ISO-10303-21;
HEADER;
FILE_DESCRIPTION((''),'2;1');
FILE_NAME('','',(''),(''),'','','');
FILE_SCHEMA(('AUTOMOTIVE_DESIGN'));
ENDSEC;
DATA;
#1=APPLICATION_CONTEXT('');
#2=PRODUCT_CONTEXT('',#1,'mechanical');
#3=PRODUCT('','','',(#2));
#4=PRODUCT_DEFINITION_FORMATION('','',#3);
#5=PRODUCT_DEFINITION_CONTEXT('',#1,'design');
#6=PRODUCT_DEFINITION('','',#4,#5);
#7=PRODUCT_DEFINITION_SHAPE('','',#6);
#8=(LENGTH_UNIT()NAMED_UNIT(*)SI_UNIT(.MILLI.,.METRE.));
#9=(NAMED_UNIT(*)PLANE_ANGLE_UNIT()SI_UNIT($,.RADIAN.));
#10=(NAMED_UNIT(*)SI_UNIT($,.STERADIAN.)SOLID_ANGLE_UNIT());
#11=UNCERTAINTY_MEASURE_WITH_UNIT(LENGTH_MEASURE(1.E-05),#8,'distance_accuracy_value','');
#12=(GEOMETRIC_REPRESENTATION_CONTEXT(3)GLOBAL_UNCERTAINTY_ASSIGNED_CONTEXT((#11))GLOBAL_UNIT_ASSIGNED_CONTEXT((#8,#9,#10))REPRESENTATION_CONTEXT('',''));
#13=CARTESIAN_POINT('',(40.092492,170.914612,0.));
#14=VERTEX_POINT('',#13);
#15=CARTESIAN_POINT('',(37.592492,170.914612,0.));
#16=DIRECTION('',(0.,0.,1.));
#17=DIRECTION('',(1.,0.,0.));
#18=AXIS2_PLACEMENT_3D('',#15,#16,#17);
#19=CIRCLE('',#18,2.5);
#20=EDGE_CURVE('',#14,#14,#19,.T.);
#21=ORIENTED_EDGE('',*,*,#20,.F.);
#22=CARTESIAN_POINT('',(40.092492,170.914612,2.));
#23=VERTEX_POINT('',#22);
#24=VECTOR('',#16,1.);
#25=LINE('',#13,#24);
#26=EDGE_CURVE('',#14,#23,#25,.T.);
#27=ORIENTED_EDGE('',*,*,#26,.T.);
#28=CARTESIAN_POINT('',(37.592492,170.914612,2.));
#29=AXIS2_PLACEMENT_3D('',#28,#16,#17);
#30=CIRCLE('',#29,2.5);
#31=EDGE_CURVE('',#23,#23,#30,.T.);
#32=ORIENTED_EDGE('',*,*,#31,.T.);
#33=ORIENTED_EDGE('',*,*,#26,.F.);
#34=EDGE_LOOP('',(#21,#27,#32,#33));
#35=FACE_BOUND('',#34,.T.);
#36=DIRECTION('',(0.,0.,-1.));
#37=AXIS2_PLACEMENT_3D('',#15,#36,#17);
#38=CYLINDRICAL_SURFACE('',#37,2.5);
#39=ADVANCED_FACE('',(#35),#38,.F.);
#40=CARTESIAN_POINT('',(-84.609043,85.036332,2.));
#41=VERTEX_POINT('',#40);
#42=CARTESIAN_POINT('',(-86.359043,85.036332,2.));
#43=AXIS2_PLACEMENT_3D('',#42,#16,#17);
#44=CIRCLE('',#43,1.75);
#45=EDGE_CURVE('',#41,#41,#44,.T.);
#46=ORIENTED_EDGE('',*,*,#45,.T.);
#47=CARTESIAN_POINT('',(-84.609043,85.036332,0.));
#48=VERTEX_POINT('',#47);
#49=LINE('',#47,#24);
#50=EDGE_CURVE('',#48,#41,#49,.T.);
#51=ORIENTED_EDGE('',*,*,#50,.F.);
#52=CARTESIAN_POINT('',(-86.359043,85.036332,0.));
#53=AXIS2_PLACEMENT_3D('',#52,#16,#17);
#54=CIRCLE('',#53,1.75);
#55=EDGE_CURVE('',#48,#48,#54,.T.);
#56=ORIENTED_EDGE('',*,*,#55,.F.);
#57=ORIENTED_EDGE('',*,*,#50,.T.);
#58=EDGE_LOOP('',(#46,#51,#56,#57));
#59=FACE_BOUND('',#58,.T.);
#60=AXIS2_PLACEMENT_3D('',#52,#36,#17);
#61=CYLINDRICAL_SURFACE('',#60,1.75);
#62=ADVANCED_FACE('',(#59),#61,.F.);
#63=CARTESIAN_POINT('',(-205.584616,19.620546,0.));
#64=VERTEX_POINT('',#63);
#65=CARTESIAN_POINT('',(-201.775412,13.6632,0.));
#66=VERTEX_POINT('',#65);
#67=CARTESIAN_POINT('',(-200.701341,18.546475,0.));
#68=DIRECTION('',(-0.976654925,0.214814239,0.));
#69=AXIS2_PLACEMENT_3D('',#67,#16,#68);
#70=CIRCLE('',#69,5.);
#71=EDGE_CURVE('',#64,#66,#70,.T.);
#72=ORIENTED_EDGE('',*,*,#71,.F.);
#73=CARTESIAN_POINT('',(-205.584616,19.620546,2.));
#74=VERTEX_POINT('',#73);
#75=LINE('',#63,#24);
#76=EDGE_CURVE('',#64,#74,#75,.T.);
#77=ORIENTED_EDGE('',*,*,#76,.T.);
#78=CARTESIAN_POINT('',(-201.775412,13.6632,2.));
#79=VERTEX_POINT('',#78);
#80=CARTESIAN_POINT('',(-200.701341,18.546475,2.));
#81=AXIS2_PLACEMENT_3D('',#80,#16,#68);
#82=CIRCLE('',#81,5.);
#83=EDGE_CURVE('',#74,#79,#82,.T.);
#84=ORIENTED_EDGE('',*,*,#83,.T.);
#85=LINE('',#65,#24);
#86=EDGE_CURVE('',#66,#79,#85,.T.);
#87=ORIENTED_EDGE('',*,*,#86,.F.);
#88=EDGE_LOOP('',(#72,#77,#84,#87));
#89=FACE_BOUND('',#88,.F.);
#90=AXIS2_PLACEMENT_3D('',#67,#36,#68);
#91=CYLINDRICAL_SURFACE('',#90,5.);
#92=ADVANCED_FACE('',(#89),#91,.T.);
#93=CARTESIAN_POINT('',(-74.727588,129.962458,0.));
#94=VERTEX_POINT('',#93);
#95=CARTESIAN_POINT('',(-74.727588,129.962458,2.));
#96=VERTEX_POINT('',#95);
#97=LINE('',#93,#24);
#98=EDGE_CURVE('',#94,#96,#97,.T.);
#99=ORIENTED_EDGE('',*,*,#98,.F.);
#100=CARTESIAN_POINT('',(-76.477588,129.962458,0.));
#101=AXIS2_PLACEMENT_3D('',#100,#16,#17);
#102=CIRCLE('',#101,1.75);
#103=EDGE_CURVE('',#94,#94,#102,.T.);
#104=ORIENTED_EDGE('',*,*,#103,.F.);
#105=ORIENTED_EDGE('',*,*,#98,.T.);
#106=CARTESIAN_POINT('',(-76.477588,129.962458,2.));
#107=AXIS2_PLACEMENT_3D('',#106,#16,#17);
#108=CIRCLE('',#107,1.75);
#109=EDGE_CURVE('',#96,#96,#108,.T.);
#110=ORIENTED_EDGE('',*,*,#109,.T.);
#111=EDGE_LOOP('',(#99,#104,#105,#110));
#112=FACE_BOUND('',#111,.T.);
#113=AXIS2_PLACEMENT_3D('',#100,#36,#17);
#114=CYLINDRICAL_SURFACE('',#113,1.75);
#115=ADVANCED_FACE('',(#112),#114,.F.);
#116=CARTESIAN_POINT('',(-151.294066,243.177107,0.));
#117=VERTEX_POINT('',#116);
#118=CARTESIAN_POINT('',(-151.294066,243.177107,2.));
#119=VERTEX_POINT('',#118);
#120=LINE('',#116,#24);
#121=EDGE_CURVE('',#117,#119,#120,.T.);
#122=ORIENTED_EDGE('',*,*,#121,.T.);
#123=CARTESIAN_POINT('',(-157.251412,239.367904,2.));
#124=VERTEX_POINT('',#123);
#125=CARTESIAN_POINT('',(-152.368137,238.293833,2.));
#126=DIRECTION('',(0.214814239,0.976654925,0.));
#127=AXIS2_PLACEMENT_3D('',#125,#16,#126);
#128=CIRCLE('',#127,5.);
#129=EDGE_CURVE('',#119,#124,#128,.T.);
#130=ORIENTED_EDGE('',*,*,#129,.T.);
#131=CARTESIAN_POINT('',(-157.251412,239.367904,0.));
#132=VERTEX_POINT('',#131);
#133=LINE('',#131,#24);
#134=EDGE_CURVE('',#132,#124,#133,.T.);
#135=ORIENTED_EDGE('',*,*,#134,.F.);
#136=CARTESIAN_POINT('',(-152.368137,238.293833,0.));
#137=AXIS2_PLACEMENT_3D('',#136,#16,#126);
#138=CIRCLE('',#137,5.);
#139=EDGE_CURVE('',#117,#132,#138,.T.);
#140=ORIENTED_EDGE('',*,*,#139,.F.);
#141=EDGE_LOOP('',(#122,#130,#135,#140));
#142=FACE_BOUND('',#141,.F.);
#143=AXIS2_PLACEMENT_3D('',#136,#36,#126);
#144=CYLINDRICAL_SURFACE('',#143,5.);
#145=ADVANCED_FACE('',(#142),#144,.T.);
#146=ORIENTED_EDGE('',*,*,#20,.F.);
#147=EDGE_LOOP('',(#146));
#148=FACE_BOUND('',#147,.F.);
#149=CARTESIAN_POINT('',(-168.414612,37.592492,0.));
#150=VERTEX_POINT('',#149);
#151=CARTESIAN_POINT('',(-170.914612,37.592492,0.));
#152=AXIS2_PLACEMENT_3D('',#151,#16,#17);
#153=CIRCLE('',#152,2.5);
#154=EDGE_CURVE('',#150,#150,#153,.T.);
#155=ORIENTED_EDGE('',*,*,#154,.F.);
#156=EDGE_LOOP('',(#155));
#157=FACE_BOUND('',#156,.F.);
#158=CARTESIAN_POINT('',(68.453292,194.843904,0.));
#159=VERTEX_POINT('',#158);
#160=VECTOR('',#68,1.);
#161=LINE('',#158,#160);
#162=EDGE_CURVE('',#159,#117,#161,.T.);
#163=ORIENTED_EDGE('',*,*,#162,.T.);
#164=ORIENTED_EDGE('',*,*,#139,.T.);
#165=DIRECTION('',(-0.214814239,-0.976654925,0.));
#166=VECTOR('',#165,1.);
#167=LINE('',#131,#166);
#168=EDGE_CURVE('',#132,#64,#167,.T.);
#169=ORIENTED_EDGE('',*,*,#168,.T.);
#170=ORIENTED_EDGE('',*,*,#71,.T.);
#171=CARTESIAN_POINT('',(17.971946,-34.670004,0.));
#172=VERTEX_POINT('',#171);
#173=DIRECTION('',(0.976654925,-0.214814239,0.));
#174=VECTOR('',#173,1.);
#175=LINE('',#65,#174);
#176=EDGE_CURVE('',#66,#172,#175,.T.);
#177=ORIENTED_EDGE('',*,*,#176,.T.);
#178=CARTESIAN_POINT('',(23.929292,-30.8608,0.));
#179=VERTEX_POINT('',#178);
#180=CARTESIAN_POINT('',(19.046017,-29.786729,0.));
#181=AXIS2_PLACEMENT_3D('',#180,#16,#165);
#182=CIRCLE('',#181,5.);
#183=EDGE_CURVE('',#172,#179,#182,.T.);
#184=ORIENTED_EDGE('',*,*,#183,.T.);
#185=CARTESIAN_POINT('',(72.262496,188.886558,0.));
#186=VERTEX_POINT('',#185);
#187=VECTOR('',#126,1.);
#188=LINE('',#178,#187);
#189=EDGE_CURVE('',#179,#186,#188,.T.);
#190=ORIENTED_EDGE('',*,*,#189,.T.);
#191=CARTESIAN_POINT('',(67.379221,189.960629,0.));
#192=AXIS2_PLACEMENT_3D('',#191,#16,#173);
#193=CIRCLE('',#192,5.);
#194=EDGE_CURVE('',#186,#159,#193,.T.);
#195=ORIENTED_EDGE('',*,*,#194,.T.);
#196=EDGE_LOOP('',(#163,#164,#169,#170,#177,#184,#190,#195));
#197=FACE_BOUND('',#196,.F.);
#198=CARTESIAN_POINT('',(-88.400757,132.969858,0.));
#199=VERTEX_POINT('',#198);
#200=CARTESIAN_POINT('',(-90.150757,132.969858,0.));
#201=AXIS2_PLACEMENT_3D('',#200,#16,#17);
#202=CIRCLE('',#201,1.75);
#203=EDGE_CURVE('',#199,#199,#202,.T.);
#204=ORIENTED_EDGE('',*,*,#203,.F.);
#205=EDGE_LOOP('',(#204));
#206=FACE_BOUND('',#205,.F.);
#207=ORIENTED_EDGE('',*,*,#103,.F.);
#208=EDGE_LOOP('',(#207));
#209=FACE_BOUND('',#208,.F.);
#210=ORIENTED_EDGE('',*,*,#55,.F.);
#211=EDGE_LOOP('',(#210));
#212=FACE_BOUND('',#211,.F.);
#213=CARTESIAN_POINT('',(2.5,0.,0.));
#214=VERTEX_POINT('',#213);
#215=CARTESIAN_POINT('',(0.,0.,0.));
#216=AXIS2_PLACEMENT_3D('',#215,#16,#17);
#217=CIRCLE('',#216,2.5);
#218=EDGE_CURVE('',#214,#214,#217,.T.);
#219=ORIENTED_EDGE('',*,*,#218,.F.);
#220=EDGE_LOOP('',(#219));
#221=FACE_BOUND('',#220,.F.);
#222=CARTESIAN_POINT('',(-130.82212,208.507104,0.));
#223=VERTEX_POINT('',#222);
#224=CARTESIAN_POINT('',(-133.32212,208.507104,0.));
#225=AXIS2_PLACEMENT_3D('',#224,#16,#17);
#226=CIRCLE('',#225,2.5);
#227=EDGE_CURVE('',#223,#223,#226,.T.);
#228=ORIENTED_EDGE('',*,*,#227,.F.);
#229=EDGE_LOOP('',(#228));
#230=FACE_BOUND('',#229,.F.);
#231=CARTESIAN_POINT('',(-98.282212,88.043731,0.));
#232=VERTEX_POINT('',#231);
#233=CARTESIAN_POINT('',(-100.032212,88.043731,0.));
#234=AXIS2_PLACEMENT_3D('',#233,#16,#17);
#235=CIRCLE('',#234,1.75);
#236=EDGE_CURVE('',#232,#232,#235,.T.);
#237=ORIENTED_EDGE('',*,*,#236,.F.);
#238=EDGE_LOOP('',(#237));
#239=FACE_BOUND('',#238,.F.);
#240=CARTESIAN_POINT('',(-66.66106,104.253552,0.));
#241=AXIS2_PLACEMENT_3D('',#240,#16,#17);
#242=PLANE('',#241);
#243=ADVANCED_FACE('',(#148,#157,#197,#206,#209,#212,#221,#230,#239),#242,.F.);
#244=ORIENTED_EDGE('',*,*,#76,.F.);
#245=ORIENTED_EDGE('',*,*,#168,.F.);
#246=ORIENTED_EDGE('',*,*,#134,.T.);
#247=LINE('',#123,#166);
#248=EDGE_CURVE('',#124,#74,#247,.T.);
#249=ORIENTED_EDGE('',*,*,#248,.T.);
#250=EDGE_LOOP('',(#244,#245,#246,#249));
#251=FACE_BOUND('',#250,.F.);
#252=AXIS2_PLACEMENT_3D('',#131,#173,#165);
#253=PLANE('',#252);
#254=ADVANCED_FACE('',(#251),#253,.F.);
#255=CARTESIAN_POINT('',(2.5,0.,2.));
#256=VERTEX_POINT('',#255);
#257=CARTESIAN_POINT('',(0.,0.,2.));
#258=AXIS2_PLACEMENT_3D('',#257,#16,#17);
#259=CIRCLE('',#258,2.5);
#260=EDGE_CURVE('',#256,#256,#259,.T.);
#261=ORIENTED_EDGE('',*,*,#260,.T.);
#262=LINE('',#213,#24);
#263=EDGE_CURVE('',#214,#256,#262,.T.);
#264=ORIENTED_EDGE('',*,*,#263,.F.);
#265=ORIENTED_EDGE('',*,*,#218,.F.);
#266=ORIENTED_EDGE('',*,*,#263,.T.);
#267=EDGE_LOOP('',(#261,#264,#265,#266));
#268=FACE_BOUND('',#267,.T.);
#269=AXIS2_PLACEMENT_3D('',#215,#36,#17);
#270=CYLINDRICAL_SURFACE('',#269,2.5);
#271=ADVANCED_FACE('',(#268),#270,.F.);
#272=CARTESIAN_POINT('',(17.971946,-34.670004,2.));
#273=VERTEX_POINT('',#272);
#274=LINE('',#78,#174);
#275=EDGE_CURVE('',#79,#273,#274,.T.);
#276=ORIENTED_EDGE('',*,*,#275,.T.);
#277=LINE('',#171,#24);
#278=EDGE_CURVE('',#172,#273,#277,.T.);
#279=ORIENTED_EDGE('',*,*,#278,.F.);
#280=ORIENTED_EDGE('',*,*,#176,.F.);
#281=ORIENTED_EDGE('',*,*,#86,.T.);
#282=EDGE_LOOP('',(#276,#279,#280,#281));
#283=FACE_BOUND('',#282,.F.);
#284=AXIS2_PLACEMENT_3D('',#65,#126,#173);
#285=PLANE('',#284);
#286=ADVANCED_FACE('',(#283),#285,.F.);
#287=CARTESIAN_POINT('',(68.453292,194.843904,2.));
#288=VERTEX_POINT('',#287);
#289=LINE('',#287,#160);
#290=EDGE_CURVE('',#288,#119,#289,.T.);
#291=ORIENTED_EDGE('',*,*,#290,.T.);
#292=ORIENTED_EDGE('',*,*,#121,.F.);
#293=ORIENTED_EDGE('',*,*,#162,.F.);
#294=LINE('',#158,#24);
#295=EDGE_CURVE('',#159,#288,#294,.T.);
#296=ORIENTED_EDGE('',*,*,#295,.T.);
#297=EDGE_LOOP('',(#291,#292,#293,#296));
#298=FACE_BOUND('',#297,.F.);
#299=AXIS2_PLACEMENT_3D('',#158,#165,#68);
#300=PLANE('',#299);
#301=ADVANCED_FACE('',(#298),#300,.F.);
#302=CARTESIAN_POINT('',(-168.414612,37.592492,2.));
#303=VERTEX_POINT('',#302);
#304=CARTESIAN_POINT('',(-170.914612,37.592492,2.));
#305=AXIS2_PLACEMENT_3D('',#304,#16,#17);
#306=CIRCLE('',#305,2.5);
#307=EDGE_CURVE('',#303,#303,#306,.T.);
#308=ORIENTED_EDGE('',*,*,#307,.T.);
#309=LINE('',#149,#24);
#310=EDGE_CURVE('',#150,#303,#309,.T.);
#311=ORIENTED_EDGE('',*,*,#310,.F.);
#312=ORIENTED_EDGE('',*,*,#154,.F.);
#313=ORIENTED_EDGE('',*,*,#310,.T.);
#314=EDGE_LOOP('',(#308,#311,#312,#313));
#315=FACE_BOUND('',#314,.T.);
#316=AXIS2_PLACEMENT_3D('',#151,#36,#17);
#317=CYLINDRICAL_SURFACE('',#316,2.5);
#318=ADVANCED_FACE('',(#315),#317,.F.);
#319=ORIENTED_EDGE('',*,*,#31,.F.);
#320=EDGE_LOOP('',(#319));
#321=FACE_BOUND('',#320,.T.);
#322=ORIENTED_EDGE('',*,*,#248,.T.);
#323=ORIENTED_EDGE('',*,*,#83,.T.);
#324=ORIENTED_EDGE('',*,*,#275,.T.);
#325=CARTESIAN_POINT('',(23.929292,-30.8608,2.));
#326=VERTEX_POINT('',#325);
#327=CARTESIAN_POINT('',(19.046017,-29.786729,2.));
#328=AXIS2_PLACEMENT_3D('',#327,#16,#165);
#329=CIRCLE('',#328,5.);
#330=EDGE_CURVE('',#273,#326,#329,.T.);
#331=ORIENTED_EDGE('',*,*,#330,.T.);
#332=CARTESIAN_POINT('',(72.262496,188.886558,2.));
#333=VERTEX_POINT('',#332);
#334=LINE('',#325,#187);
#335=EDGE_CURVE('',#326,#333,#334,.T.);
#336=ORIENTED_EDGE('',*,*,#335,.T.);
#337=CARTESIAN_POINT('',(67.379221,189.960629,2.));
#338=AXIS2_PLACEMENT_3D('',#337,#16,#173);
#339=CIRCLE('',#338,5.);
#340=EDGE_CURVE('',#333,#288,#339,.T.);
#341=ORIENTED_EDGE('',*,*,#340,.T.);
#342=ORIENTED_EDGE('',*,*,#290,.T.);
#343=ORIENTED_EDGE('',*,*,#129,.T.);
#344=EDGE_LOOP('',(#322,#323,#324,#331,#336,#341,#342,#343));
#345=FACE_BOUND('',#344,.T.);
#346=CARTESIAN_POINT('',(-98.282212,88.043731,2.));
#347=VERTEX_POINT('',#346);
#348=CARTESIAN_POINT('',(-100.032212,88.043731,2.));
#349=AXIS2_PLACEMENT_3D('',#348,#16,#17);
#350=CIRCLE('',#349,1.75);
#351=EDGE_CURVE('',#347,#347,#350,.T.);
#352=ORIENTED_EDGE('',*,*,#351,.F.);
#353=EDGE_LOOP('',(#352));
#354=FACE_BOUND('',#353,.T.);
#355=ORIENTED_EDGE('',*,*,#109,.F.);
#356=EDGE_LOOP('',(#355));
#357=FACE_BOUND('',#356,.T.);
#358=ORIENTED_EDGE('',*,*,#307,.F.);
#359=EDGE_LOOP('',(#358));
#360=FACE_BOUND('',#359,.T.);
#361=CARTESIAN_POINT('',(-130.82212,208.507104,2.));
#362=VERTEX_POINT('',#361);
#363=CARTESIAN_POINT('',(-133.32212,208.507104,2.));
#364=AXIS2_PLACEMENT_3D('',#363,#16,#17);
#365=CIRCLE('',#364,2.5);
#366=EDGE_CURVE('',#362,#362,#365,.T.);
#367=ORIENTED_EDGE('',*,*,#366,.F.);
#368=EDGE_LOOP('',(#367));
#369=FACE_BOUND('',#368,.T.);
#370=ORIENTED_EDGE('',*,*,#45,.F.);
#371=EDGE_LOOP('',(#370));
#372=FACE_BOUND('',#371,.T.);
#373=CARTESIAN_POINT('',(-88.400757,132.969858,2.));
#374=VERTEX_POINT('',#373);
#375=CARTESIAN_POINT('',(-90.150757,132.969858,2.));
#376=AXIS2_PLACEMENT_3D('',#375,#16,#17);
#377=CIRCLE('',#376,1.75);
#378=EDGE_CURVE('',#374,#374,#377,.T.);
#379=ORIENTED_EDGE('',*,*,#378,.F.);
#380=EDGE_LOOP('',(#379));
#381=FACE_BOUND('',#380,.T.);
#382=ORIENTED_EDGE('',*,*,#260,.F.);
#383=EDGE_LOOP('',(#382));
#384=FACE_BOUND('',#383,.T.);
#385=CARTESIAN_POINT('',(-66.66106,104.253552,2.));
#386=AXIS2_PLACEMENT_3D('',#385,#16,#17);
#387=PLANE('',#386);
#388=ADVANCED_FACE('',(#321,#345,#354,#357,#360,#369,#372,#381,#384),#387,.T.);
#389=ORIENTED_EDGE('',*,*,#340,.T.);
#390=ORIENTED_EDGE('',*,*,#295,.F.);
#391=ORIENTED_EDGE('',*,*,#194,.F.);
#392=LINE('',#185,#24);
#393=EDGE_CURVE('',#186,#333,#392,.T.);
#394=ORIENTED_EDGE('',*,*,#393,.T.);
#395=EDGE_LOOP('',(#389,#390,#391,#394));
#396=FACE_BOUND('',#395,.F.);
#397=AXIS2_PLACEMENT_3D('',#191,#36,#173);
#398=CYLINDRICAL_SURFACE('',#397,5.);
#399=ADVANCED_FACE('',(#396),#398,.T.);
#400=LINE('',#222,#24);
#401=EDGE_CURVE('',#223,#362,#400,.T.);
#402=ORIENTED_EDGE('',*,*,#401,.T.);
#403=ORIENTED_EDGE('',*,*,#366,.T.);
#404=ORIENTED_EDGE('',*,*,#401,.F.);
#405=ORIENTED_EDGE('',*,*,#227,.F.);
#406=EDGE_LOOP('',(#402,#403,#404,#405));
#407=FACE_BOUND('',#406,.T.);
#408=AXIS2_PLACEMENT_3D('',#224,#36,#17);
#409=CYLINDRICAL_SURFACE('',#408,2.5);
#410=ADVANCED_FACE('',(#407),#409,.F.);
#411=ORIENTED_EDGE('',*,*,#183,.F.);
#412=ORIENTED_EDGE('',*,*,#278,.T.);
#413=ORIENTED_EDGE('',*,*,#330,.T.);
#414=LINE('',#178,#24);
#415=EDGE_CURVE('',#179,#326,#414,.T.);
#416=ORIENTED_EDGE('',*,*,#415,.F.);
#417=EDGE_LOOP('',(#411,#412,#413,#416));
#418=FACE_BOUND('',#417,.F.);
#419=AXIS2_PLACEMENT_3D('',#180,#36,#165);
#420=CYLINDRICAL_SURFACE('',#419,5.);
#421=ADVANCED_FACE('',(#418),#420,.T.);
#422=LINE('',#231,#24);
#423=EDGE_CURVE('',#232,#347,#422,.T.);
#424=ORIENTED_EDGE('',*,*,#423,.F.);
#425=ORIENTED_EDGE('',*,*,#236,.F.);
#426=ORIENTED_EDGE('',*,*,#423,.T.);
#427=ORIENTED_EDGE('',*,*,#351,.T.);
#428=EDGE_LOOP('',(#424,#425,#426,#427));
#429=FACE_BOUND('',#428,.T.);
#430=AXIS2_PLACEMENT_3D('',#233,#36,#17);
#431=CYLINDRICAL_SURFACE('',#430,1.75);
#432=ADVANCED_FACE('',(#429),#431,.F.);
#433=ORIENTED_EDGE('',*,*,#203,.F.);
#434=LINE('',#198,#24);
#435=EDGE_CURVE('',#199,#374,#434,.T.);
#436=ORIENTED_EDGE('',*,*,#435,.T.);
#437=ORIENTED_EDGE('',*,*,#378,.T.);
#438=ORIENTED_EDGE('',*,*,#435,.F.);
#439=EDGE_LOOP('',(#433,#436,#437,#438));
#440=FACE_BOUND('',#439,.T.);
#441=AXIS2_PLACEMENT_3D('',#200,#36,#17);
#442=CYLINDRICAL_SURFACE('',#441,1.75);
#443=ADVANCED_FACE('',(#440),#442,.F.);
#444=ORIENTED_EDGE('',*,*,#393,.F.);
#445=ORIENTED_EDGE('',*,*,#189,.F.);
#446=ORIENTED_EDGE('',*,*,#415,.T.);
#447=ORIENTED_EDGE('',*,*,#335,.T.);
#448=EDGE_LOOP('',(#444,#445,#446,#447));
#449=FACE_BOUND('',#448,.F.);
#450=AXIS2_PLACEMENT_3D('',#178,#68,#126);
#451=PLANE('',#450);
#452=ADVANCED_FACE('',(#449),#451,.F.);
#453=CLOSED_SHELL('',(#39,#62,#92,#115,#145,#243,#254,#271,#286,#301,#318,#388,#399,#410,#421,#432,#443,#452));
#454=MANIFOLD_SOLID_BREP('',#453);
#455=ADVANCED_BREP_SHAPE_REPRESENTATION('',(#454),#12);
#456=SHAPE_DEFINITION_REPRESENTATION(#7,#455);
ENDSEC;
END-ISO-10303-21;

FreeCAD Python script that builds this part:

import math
import FreeCAD as App
import Part
import Sketcher

V = App.Vector
Q = App.Units.Quantity

doc = App.newDocument("Part")
body = doc.addObject("PartDesign::Body", "Body")

sketch1 = body.newObject("Sketcher::SketchObject", "Sketch")
sketch1.AttachmentSupport = (doc.getObject("XY_Plane"), [""])
sketch1.MapMode = "FlatFace"
sketch1.addGeometry(Part.LineSegment(V(-201.8, 13.7, 0), V(18, -34.7, 0)), False)
sketch1.addGeometry(Part.ArcOfCircle(Part.Circle(V(19, -29.8, 0), V(0, 0, 1), 5), math.radians(-102), math.radians(-12)), False)
sketch1.addGeometry(Part.LineSegment(V(23.9, -30.9, 0), V(72.3, 188.9, 0)), False)
sketch1.addGeometry(Part.ArcOfCircle(Part.Circle(V(67.4, 190, 0), V(0, 0, 1), 5), math.radians(-12), math.radians(78)), False)
sketch1.addGeometry(Part.LineSegment(V(68.5, 194.8, 0), V(-151.3, 243.2, 0)), False)
sketch1.addGeometry(Part.ArcOfCircle(Part.Circle(V(-152.4, 238.3, 0), V(0, 0, 1), 5), math.radians(78), math.radians(168)), False)
sketch1.addGeometry(Part.LineSegment(V(-157.3, 239.4, 0), V(-205.6, 19.6, 0)), False)
sketch1.addGeometry(Part.ArcOfCircle(Part.Circle(V(-200.7, 18.5, 0), V(0, 0, 1), 5), math.radians(168), math.radians(258)), False)
sketch1.addGeometry(Part.Circle(V(-170.9, 37.6, 0), V(0, 0, 1), 2.5), False)
sketch1.addGeometry(Part.Circle(V(-100, 88, 0), V(0, 0, 1), 1.8), False)
sketch1.addGeometry(Part.Circle(V(-86.4, 85, 0), V(0, 0, 1), 1.8), False)
sketch1.addGeometry(Part.Circle(V(0, 0, 0), V(0, 0, 1), 2.5), False)
sketch1.addGeometry(Part.Circle(V(-76.5, 130, 0), V(0, 0, 1), 1.8), False)
sketch1.addGeometry(Part.Circle(V(-90.2, 133, 0), V(0, 0, 1), 1.8), False)
sketch1.addGeometry(Part.Circle(V(-133.3, 208.5, 0), V(0, 0, 1), 2.5), False)
sketch1.addGeometry(Part.Circle(V(37.6, 170.9, 0), V(0, 0, 1), 2.5), False)
sketch1.addConstraint(Sketcher.Constraint("Tangent", 0, 2, 1, 1))
sketch1.addConstraint(Sketcher.Constraint("Tangent", 1, 2, 2, 1))
sketch1.addConstraint(Sketcher.Constraint("Tangent", 2, 2, 3, 1))
sketch1.addConstraint(Sketcher.Constraint("Tangent", 3, 2, 4, 1))
sketch1.addConstraint(Sketcher.Constraint("Tangent", 4, 2, 5, 1))
sketch1.addConstraint(Sketcher.Constraint("Tangent", 5, 2, 6, 1))
sketch1.addConstraint(Sketcher.Constraint("Tangent", 6, 2, 7, 1))
sketch1.addConstraint(Sketcher.Constraint("Tangent", 7, 2, 0, 1))
sketch1.addConstraint(Sketcher.Constraint("Coincident", 11, 3, -1, 1))
sketch1.addConstraint(Sketcher.Constraint("Equal", 1, 3))
sketch1.addConstraint(Sketcher.Constraint("Equal", 3, 5))
sketch1.addConstraint(Sketcher.Constraint("Equal", 5, 7))
sketch1.addConstraint(Sketcher.Constraint("Equal", 9, 10))
sketch1.addConstraint(Sketcher.Constraint("Equal", 8, 11))
sketch1.addConstraint(Sketcher.Constraint("Equal", 10, 12))
sketch1.addConstraint(Sketcher.Constraint("Equal", 12, 13))
sketch1.addConstraint(Sketcher.Constraint("Equal", 11, 14))
sketch1.addConstraint(Sketcher.Constraint("Equal", 14, 15))
sketch1.addConstraint(Sketcher.Constraint("Perpendicular", 0, 2))
sketch1.addConstraint(Sketcher.Constraint("Perpendicular", 2, 4))
sketch1.addConstraint(Sketcher.Constraint("Perpendicular", 4, 6))
sketch1.addConstraint(Sketcher.Constraint("Equal", 0, 2))
sketch1.addConstraint(Sketcher.Constraint("Diameter", 8, Q("5 mm")))
sketch1.addConstraint(Sketcher.Constraint("Radius", 1, Q("5 mm")))
sketch1.addConstraint(Sketcher.Constraint("Diameter", 9, Q("3.5 mm")))
sketch1.addConstraint(Sketcher.Constraint("Distance", 0, Q("225 mm")))
sketch1.addConstraint(Sketcher.Constraint("DistanceY", 1, 2, -1, 1, Q("30.8608 mm")))
sketch1.addConstraint(Sketcher.Constraint("DistanceY", -1, 1, 7, 2, Q("13.6632 mm")))
sketch1.addConstraint(Sketcher.Constraint("DistanceX", 8, 3, 9, 3, Q("70.882399 mm")))
sketch1.addConstraint(Sketcher.Constraint("DistanceY", 9, 3, 5, 3, Q("150.250102 mm")))
sketch1.addConstraint(Sketcher.Constraint("DistanceY", 10, 3, 9, 3, Q("3.007399 mm")))
sketch1.addConstraint(Sketcher.Constraint("DistanceY", 12, 3, 13, 3, Q("3.007399 mm")))
sketch1.addConstraint(Sketcher.Constraint("DistanceY", 12, 3, 2, 2, Q("58.9241 mm")))
sketch1.addConstraint(Sketcher.Constraint("DistanceX", 15, 3, 3, 2, Q("30.8608 mm")))
sketch1.addConstraint(Sketcher.Constraint("DistanceY", 14, 3, 5, 2, Q("30.8608 mm")))
sketch1.addConstraint(Sketcher.Constraint("DistanceX", 7, 2, 8, 3, Q("30.8608 mm")))
sketch1.addConstraint(Sketcher.Constraint("DistanceX", -1, 1, 3, 3, Q("67.379221 mm")))
sketch1.addConstraint(Sketcher.Constraint("DistanceY", -1, 1, 8, 3, Q("37.592492 mm")))
sketch1.addConstraint(Sketcher.Constraint("DistanceX", 12, 3, -1, 1, Q("76.477588 mm")))
sketch1.addConstraint(Sketcher.Constraint("DistanceX", 14, 3, -1, 1, Q("133.32212 mm")))
sketch1.addConstraint(Sketcher.Constraint("DistanceY", -1, 1, 15, 3, Q("170.914612 mm")))
sketch1.addConstraint(Sketcher.Constraint("DistanceX", 9, 3, 10, 3, Q("13.673169 mm")))
sketch1.addConstraint(Sketcher.Constraint("DistanceX", 13, 3, 12, 3, Q("13.673169 mm")))
pad1 = body.newObject("PartDesign::Pad", "Pad")
pad1.Profile = sketch1
pad1.Length = 2

doc.recompute()
